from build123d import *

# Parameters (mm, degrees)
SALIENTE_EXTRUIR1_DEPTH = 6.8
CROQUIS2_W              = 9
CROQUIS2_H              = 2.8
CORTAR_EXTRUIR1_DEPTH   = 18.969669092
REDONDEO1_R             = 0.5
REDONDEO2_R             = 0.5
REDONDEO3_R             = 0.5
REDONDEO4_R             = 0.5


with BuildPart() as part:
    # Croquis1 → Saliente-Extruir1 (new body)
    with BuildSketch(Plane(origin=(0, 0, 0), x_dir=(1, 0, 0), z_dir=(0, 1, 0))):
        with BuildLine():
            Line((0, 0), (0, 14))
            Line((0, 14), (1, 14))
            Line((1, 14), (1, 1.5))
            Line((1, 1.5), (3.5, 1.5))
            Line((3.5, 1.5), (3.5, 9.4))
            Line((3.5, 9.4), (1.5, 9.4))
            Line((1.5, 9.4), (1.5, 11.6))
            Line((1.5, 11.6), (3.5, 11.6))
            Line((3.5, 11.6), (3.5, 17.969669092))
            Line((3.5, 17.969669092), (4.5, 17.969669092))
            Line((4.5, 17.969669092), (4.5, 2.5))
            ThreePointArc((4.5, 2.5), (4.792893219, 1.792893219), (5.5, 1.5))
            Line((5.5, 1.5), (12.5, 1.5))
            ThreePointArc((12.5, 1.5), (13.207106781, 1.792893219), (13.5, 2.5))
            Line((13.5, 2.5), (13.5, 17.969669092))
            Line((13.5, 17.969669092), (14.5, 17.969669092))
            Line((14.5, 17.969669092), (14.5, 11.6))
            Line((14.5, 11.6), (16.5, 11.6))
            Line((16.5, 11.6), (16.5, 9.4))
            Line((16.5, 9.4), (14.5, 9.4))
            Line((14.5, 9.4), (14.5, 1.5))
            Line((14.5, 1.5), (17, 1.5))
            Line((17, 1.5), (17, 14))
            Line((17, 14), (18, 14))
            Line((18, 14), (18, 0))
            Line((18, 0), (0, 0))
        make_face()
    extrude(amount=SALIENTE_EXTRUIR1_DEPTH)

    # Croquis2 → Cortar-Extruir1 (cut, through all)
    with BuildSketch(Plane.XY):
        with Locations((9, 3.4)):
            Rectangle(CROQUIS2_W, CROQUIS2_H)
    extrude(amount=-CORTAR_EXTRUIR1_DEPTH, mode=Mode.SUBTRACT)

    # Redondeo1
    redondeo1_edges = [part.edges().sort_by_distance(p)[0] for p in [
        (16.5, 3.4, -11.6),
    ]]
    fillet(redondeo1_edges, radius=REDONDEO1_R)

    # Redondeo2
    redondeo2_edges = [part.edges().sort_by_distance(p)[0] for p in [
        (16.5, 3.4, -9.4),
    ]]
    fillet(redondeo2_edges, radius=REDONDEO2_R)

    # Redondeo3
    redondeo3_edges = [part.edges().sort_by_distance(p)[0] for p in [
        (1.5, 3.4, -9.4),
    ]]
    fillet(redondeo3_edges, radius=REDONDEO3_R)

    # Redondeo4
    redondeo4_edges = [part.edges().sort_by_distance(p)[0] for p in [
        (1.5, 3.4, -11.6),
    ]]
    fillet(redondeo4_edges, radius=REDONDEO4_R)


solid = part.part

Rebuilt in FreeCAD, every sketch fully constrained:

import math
import FreeCAD as App
import Part
import Sketcher
from FreeCAD import Vector
Q = App.Units.Quantity


def edges_at(feature, points):
    """Names of the edges that pass closest to the given points."""
    edges = feature.Shape.Edges
    near = lambda p: min(range(len(edges)), key=lambda i: edges[i].distToShape(Part.Vertex(*p))[0])
    return sorted({f"Edge{near(p) + 1}" for p in points})

doc = App.newDocument("Part")
body = doc.addObject("PartDesign::Body", "Body")

# Sketch on XZ plane
sketch1 = doc.addObject("Sketcher::SketchObject", "Sketch")
body.addObject(sketch1)
sketch1.AttachmentSupport = (doc.XZ_Plane, [""])
sketch1.MapMode = "FlatFace"
sketch1.addGeometry(Part.LineSegment(Vector(0, -14, 0), Vector(0, 0, 0)), False)
sketch1.addGeometry(Part.LineSegment(Vector(0, 0, 0), Vector(18, 0, 0)), False)
sketch1.addGeometry(Part.LineSegment(Vector(18, 0, 0), Vector(18, -14, 0)), False)
sketch1.addGeometry(Part.LineSegment(Vector(18, -14, 0), Vector(17, -14, 0)), False)
sketch1.addGeometry(Part.LineSegment(Vector(17, -14, 0), Vector(17, -1.5, 0)), False)
sketch1.addGeometry(Part.LineSegment(Vector(17, -1.5, 0), Vector(14.5, -1.5, 0)), False)
sketch1.addGeometry(Part.LineSegment(Vector(14.5, -1.5, 0), Vector(14.5, -9.4, 0)), False)
sketch1.addGeometry(Part.LineSegment(Vector(14.5, -9.4, 0), Vector(16.5, -9.4, 0)), False)
sketch1.addGeometry(Part.LineSegment(Vector(16.5, -9.4, 0), Vector(16.5, -11.6, 0)), False)
sketch1.addGeometry(Part.LineSegment(Vector(16.5, -11.6, 0), Vector(14.5, -11.6, 0)), False)
sketch1.addGeometry(Part.LineSegment(Vector(14.5, -11.6, 0), Vector(14.5, -17.969669, 0)), False)
sketch1.addGeometry(Part.LineSegment(Vector(14.5, -17.969669, 0), Vector(13.5, -17.969669, 0)), False)
sketch1.addGeometry(Part.LineSegment(Vector(13.5, -17.969669, 0), Vector(13.5, -2.5, 0)), False)
sketch1.addGeometry(Part.ArcOfCircle(Part.Circle(Vector(12.5, -2.5, 0), Vector(0, 0, 1), 1), math.radians(0), math.radians(90)), False)
sketch1.addGeometry(Part.LineSegment(Vector(12.5, -1.5, 0), Vector(5.5, -1.5, 0)), False)
sketch1.addGeometry(Part.ArcOfCircle(Part.Circle(Vector(5.5, -2.5, 0), Vector(0, 0, 1), 1), math.radians(90), math.radians(180)), False)
sketch1.addGeometry(Part.LineSegment(Vector(4.5, -2.5, 0), Vector(4.5, -17.969669, 0)), False)
sketch1.addGeometry(Part.LineSegment(Vector(4.5, -17.969669, 0), Vector(3.5, -17.969669, 0)), False)
sketch1.addGeometry(Part.LineSegment(Vector(3.5, -17.969669, 0), Vector(3.5, -11.6, 0)), False)
sketch1.addGeometry(Part.LineSegment(Vector(3.5, -11.6, 0), Vector(1.5, -11.6, 0)), False)
sketch1.addGeometry(Part.LineSegment(Vector(1.5, -11.6, 0), Vector(1.5, -9.4, 0)), False)
sketch1.addGeometry(Part.LineSegment(Vector(1.5, -9.4, 0), Vector(3.5, -9.4, 0)), False)
sketch1.addGeometry(Part.LineSegment(Vector(3.5, -9.4, 0), Vector(3.5, -1.5, 0)), False)
sketch1.addGeometry(Part.LineSegment(Vector(3.5, -1.5, 0), Vector(1, -1.5, 0)), False)
sketch1.addGeometry(Part.LineSegment(Vector(1, -1.5, 0), Vector(1, -14, 0)), False)
sketch1.addGeometry(Part.LineSegment(Vector(1, -14, 0), Vector(0, -14, 0)), False)
sketch1.addConstraint(Sketcher.Constraint("Coincident", 0, 2, 1, 1))
sketch1.addConstraint(Sketcher.Constraint("Coincident", 1, 2, 2, 1))
sketch1.addConstraint(Sketcher.Constraint("Coincident", 2, 2, 3, 1))
sketch1.addConstraint(Sketcher.Constraint("Coincident", 3, 2, 4, 1))
sketch1.addConstraint(Sketcher.Constraint("Coincident", 4, 2, 5, 1))
sketch1.addConstraint(Sketcher.Constraint("Coincident", 5, 2, 6, 1))
sketch1.addConstraint(Sketcher.Constraint("Coincident", 6, 2, 7, 1))
sketch1.addConstraint(Sketcher.Constraint("Coincident", 7, 2, 8, 1))
sketch1.addConstraint(Sketcher.Constraint("Coincident", 8, 2, 9, 1))
sketch1.addConstraint(Sketcher.Constraint("Coincident", 9, 2, 10, 1))
sketch1.addConstraint(Sketcher.Constraint("Coincident", 10, 2, 11, 1))
sketch1.addConstraint(Sketcher.Constraint("Coincident", 11, 2, 12, 1))
sketch1.addConstraint(Sketcher.Constraint("Tangent", 12, 2, 13, 1))
sketch1.addConstraint(Sketcher.Constraint("Tangent", 13, 2, 14, 1))
sketch1.addConstraint(Sketcher.Constraint("Tangent", 14, 2, 15, 1))
sketch1.addConstraint(Sketcher.Constraint("Tangent", 15, 2, 16, 1))
sketch1.addConstraint(Sketcher.Constraint("Coincident", 16, 2, 17, 1))
sketch1.addConstraint(Sketcher.Constraint("Coincident", 17, 2, 18, 1))
sketch1.addConstraint(Sketcher.Constraint("Coincident", 18, 2, 19, 1))
sketch1.addConstraint(Sketcher.Constraint("Coincident", 19, 2, 20, 1))
sketch1.addConstraint(Sketcher.Constraint("Coincident", 20, 2, 21, 1))
sketch1.addConstraint(Sketcher.Constraint("Coincident", 21, 2, 22, 1))
sketch1.addConstraint(Sketcher.Constraint("Coincident", 22, 2, 23, 1))
sketch1.addConstraint(Sketcher.Constraint("Coincident", 23, 2, 24, 1))
sketch1.addConstraint(Sketcher.Constraint("Coincident", 24, 2, 25, 1))
sketch1.addConstraint(Sketcher.Constraint("Coincident", 25, 2, 0, 1))
sketch1.addConstraint(Sketcher.Constraint("Vertical", 0))
sketch1.addConstraint(Sketcher.Constraint("Horizontal", 1))
sketch1.addConstraint(Sketcher.Constraint("Vertical", 2))
sketch1.addConstraint(Sketcher.Constraint("Horizontal", 3))
sketch1.addConstraint(Sketcher.Constraint("Vertical", 4))
sketch1.addConstraint(Sketcher.Constraint("Horizontal", 5))
sketch1.addConstraint(Sketcher.Constraint("Vertical", 6))
sketch1.addConstraint(Sketcher.Constraint("Horizontal", 7))
sketch1.addConstraint(Sketcher.Constraint("Vertical", 8))
sketch1.addConstraint(Sketcher.Constraint("Horizontal", 9))
sketch1.addConstraint(Sketcher.Constraint("Vertical", 10))
sketch1.addConstraint(Sketcher.Constraint("Horizontal", 11))
sketch1.addConstraint(Sketcher.Constraint("Vertical", 12))
sketch1.addConstraint(Sketcher.Constraint("Horizontal", 14))
sketch1.addConstraint(Sketcher.Constraint("Vertical", 16))
sketch1.addConstraint(Sketcher.Constraint("Horizontal", 17))
sketch1.addConstraint(Sketcher.Constraint("Vertical", 18))
sketch1.addConstraint(Sketcher.Constraint("Horizontal", 19))
sketch1.addConstraint(Sketcher.Constraint("Vertical", 20))
sketch1.addConstraint(Sketcher.Constraint("Horizontal", 21))
sketch1.addConstraint(Sketcher.Constraint("Vertical", 22))
sketch1.addConstraint(Sketcher.Constraint("Horizontal", 23))
sketch1.addConstraint(Sketcher.Constraint("Vertical", 24))
sketch1.addConstraint(Sketcher.Constraint("Horizontal", 25))
sketch1.addConstraint(Sketcher.Constraint("Coincident", 0, 2, -1, 1))
sketch1.addConstraint(Sketcher.Constraint("Equal", 13, 15))
sketch1.addConstraint(Sketcher.Constraint("Horizontal", 5, 2, 13, 2))
sketch1.addConstraint(Sketcher.Constraint("Horizontal", 11, 2, 16, 2))
sketch1.addConstraint(Sketcher.Constraint("Horizontal", 9, 2, 18, 2))
sketch1.addConstraint(Sketcher.Constraint("Horizontal", 7, 2, 20, 2))
sketch1.addConstraint(Sketcher.Constraint("Horizontal", 14, 2, 22, 2))
sketch1.addConstraint(Sketcher.Constraint("Horizontal", 3, 2, 24, 2))
sketch1.addConstraint(Sketcher.Constraint("Vertical", 6, 2, 9, 2))
sketch1.addConstraint(Sketcher.Constraint("Vertical", 18, 2, 21, 2))
sketch1.addConstraint(Sketcher.Constraint("Equal", 3, 11))
sketch1.addConstraint(Sketcher.Constraint("Equal", 11, 17))
sketch1.addConstraint(Sketcher.Constraint("Equal", 9, 19))
sketch1.addConstraint(Sketcher.Constraint("Equal", 5, 23))
sketch1.addConstraint(Sketcher.Constraint("Equal", 17, 25))
sketch1.addConstraint(Sketcher.Constraint("Radius", 13, Q("1 mm")))
sketch1.addConstraint(Sketcher.Constraint("DistanceX", 1, 1, 1, 2, Q("18 mm")))
sketch1.addConstraint(Sketcher.Constraint("DistanceX", 3, 2, 3, 1, Q("1 mm")))
sketch1.addConstraint(Sketcher.Constraint("DistanceX", 7, 1, 7, 2, Q("2 mm")))
sketch1.addConstraint(Sketcher.Constraint("DistanceX", 14, 2, 14, 1, Q("7 mm")))
sketch1.addConstraint(Sketcher.Constraint("DistanceY", 0, 1, 0, 2, Q("14 mm")))
sketch1.addConstraint(Sketcher.Constraint("DistanceY", 4, 1, 4, 2, Q("12.5 mm")))
sketch1.addConstraint(Sketcher.Constraint("DistanceY", 6, 2, 6, 1, Q("7.9 mm")))
sketch1.addConstraint(Sketcher.Constraint("DistanceY", 8, 2, 8, 1, Q("2.2 mm")))
sketch1.addConstraint(Sketcher.Constraint("DistanceY", 10, 2, 10, 1, Q("6.369669 mm")))
pad1 = doc.addObject("PartDesign::Pad", "Pad")
body.addObject(pad1)
pad1.Profile = sketch1
pad1.Length = 6.8
pad1.Reversed = True

# Sketch on XY plane
sketch2 = doc.addObject("Sketcher::SketchObject", "Sketch001")
body.addObject(sketch2)
sketch2.AttachmentSupport = (doc.XY_Plane, [""])
sketch2.MapMode = "FlatFace"
sketch2.addGeometry(Part.LineSegment(Vector(4.5, 4.8, 0), Vector(4.5, 2, 0)), False)
sketch2.addGeometry(Part.LineSegment(Vector(4.5, 2, 0), Vector(13.5, 2, 0)), False)
sketch2.addGeometry(Part.LineSegment(Vector(13.5, 2, 0), Vector(13.5, 4.8, 0)), False)
sketch2.addGeometry(Part.LineSegment(Vector(13.5, 4.8, 0), Vector(4.5, 4.8, 0)), False)
sketch2.addConstraint(Sketcher.Constraint("Coincident", 0, 2, 1, 1))
sketch2.addConstraint(Sketcher.Constraint("Coincident", 1, 2, 2, 1))
sketch2.addConstraint(Sketcher.Constraint("Coincident", 2, 2, 3, 1))
sketch2.addConstraint(Sketcher.Constraint("Coincident", 3, 2, 0, 1))
sketch2.addConstraint(Sketcher.Constraint("Vertical", 0))
sketch2.addConstraint(Sketcher.Constraint("Horizontal", 1))
sketch2.addConstraint(Sketcher.Constraint("Vertical", 2))
sketch2.addConstraint(Sketcher.Constraint("Horizontal", 3))
sketch2.addConstraint(Sketcher.Constraint("DistanceX", 1, 1, 1, 2, Q("9 mm")))
sketch2.addConstraint(Sketcher.Constraint("DistanceY", 0, 2, 0, 1, Q("2.8 mm")))
sketch2.addConstraint(Sketcher.Constraint("DistanceY", -1, 1, 0, 2, Q("2 mm")))
sketch2.addConstraint(Sketcher.Constraint("DistanceX", -1, 1, 0, 2, Q("4.5 mm")))
pocket1 = doc.addObject("PartDesign::Pocket", "Pocket")
body.addObject(pocket1)
pocket1.Profile = sketch2
pocket1.Type = "ThroughAll"
doc.recompute()

fillet = doc.addObject("PartDesign::Fillet", "Fillet")
body.addObject(fillet)
fillet.Base = (pocket1, edges_at(pocket1, [(16.5, 3.4, -11.6)]))
fillet.Radius = 0.5
doc.recompute()

fillet2 = doc.addObject("PartDesign::Fillet", "Fillet001")
body.addObject(fillet2)
fillet2.Base = (fillet, edges_at(fillet, [(16.5, 3.4, -9.4)]))
fillet2.Radius = 0.5
doc.recompute()

fillet3 = doc.addObject("PartDesign::Fillet", "Fillet002")
body.addObject(fillet3)
fillet3.Base = (fillet2, edges_at(fillet2, [(1.5, 3.4, -9.4)]))
fillet3.Radius = 0.5
doc.recompute()

fillet4 = doc.addObject("PartDesign::Fillet", "Fillet003")
body.addObject(fillet4)
fillet4.Base = (fillet3, edges_at(fillet3, [(1.5, 3.4, -11.6)]))
fillet4.Radius = 0.5

doc.recompute()
